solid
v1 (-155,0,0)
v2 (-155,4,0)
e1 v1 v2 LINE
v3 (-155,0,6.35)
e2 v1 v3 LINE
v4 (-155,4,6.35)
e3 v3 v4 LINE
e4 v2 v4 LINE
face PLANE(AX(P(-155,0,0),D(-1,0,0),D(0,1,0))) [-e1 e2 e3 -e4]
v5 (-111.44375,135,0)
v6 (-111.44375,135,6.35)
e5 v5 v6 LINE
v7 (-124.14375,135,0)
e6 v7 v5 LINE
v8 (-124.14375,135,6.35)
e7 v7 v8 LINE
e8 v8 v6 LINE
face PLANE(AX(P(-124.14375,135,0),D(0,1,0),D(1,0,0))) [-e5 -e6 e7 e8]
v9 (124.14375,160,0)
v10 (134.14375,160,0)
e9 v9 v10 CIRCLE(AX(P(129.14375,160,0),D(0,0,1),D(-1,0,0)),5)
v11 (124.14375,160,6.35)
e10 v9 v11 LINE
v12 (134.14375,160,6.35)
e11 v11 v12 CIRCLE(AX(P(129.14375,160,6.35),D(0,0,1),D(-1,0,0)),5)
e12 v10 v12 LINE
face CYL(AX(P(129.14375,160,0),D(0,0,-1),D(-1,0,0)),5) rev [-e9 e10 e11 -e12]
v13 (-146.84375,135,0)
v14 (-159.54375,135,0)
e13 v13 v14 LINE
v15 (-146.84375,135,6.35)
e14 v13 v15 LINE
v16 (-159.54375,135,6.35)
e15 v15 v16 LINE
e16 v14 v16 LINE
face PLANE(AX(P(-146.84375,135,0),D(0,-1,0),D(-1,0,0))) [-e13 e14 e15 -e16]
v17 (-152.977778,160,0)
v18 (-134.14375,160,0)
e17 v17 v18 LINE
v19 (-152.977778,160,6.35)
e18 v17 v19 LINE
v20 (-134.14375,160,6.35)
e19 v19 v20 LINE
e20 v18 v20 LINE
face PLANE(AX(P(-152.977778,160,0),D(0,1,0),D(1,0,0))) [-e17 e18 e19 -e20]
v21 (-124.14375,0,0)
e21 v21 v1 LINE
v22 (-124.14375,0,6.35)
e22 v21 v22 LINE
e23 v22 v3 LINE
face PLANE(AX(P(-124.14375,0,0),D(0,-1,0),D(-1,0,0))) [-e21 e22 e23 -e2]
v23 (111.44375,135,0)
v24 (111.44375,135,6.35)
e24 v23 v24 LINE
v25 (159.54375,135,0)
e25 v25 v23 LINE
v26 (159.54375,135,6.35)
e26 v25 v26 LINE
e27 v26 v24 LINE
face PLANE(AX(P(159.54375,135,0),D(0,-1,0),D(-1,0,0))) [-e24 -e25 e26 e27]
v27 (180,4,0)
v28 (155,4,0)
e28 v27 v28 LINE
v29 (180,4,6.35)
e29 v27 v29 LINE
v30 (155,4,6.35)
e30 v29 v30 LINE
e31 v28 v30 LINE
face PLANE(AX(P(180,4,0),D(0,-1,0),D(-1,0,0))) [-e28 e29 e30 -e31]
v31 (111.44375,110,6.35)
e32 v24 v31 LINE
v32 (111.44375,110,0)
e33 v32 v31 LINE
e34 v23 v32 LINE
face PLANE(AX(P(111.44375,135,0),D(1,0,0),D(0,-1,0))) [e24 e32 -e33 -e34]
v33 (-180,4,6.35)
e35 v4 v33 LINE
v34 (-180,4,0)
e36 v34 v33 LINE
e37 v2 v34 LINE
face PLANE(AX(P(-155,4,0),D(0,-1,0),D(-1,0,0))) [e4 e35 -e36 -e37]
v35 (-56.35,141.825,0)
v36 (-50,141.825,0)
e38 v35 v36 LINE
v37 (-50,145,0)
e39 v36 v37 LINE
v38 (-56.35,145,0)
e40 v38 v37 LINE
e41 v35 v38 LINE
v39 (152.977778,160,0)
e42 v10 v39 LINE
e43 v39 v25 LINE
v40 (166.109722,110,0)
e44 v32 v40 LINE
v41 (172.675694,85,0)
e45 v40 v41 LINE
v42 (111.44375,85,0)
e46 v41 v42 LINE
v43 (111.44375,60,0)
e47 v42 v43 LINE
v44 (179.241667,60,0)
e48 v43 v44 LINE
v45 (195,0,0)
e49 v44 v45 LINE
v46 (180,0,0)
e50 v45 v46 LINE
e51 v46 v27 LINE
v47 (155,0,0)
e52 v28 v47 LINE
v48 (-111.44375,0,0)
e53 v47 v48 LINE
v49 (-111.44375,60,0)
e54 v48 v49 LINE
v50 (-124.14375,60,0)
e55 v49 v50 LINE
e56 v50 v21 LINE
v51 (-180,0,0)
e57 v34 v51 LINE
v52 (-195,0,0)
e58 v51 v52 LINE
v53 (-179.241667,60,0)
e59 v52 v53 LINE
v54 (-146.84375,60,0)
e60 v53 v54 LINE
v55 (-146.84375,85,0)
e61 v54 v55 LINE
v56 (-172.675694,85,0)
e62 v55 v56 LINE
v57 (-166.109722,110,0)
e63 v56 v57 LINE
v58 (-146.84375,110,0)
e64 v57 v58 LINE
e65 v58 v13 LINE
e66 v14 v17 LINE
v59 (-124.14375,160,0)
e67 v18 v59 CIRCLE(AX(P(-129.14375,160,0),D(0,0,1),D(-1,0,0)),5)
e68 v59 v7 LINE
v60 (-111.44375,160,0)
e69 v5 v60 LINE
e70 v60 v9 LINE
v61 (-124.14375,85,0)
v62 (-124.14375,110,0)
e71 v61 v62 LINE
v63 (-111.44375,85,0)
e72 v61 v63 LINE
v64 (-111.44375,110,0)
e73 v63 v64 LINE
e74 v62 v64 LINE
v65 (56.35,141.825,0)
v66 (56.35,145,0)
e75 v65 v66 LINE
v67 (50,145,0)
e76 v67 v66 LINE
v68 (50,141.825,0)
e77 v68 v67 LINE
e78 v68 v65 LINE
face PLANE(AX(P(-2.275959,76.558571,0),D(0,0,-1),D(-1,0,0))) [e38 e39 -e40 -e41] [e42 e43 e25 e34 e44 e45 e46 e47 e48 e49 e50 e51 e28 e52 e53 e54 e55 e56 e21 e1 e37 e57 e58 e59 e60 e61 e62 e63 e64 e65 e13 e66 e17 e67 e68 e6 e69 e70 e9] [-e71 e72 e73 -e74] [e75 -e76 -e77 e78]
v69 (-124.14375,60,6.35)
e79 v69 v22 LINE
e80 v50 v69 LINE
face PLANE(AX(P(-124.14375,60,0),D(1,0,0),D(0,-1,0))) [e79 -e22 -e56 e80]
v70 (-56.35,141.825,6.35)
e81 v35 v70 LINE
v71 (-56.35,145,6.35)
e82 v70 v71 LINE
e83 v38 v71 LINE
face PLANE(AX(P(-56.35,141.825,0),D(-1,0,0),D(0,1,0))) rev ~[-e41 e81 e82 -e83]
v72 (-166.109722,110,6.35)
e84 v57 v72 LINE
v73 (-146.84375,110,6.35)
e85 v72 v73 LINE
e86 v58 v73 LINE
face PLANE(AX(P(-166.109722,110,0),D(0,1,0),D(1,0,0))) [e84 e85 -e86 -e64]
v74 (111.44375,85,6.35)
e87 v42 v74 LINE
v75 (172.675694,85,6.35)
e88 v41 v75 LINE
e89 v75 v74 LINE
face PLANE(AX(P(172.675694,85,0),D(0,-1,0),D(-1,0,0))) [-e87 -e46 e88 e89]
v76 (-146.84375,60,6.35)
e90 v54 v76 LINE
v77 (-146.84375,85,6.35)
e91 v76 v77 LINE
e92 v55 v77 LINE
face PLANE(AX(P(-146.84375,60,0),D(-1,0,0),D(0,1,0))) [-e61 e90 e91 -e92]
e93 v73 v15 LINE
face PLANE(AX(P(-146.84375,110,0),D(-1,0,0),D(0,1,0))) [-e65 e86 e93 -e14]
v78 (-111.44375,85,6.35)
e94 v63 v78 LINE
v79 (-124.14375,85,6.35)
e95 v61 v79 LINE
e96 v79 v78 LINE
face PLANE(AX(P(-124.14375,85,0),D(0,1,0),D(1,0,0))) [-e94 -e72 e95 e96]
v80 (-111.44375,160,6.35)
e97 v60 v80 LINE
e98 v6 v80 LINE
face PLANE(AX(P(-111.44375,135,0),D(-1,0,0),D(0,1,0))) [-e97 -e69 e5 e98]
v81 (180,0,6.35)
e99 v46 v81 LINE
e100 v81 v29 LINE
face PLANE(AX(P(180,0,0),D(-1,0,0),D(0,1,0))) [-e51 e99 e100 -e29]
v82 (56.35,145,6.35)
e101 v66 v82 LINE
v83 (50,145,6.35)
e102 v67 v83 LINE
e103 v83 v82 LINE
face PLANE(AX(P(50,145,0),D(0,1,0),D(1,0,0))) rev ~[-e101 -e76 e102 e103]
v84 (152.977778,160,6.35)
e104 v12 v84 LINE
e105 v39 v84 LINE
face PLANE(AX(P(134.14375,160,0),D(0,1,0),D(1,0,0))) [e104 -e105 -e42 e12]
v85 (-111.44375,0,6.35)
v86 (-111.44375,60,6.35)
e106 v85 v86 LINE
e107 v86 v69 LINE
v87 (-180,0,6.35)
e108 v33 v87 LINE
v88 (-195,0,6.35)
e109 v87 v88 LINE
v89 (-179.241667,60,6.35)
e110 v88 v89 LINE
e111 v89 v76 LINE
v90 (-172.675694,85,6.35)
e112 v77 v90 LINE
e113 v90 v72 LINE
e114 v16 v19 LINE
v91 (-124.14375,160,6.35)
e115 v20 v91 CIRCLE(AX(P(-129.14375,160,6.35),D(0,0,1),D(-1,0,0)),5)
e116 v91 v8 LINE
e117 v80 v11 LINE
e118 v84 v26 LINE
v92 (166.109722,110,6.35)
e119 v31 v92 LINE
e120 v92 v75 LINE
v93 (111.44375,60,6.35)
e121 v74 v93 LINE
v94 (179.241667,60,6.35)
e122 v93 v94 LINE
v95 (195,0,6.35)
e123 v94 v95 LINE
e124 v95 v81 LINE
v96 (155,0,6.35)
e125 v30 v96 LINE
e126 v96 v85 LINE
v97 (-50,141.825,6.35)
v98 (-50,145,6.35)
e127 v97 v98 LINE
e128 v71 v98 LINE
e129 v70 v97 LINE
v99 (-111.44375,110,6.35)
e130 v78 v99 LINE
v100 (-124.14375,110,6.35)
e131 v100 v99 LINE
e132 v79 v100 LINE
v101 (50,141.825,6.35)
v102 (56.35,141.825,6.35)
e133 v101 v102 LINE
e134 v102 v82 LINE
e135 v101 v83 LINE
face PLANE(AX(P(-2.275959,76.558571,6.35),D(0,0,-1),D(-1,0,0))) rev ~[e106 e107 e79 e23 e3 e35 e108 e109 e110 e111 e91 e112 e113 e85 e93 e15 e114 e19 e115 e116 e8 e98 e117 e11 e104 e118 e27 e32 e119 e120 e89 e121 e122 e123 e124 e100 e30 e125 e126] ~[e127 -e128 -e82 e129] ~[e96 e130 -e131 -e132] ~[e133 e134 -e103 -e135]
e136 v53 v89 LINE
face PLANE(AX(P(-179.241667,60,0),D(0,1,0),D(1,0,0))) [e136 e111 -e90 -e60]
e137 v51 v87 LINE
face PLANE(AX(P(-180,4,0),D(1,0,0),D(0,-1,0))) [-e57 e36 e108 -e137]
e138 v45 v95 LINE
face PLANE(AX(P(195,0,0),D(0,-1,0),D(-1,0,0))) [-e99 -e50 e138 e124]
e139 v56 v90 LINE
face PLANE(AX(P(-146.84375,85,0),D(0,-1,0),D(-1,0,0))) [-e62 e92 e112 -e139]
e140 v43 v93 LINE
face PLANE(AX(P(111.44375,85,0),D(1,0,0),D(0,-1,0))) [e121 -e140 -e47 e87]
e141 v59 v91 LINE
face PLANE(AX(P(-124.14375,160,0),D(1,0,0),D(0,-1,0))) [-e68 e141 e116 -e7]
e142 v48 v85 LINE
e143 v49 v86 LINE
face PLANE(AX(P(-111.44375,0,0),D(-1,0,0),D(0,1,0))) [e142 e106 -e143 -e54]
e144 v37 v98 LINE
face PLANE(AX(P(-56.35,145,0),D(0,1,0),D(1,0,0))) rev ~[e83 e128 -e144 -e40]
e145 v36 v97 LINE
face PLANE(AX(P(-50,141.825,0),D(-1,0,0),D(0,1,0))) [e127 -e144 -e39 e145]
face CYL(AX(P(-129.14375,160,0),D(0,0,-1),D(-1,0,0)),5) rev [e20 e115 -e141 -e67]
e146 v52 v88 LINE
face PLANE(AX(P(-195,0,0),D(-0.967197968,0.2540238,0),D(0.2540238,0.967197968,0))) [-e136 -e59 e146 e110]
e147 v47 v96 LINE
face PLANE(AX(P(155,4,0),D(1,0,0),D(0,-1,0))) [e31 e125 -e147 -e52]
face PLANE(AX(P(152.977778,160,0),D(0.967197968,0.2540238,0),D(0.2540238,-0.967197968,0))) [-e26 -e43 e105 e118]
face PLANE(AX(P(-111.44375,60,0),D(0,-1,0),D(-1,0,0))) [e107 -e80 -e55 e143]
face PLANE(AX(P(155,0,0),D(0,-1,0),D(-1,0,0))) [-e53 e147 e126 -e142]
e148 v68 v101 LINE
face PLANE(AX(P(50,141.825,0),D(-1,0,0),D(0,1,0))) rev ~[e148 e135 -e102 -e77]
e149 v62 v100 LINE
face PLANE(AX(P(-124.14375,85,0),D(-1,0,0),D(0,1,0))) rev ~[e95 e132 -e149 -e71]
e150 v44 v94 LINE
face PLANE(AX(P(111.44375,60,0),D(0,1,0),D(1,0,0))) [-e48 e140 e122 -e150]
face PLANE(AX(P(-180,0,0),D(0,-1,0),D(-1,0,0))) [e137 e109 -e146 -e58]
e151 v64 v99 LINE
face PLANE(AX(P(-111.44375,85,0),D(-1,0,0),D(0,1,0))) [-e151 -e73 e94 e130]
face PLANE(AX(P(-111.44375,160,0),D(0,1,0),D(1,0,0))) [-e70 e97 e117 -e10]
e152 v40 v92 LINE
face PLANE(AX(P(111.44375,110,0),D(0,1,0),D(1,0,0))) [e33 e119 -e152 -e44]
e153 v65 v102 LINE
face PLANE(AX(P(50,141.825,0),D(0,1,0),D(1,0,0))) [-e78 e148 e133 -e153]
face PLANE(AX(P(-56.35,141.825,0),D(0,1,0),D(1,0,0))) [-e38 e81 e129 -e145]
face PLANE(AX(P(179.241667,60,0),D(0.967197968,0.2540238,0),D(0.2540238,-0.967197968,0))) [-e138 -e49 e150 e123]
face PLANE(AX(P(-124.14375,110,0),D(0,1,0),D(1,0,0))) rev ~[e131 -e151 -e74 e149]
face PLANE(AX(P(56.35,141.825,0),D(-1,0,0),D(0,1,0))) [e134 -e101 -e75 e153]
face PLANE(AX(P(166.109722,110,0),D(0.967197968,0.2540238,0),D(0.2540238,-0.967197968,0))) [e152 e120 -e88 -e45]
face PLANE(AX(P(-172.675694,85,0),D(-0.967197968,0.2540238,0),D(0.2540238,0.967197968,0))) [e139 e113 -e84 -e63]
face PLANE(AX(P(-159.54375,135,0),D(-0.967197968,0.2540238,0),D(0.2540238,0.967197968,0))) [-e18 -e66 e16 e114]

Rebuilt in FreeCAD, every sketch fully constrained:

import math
import FreeCAD as App
import Part
import Sketcher

V = App.Vector


def add_polygon(sketch, points):
    """Adds a closed chain of lines whose ends are joined by coincident constraints."""
    first, n = sketch.GeometryCount, len(points)
    for a, b in zip(points, points[1:] + points[:1]):
        sketch.addGeometry(Part.LineSegment(App.Vector(*a, 0), App.Vector(*b, 0)), False)
    for i in range(n):
        sketch.addConstraint(Sketcher.Constraint("Coincident", first + i, 2, first + (i + 1) % n, 1))

doc = App.newDocument("Part")
params = doc.addObject("Spreadsheet::Sheet", "Params")
for row, (alias, value) in enumerate([
    ("sketch1_radius", "5 mm"),
    ("sketch1_width", "25 mm"),
    ("sketch1_width2", "15 mm"),
    ("sketch1_height", "4 mm"),
    ("sketch1_height2", "60 mm"),
    ("pad1_length", "6.35 mm"),
], start=1):
    params.set(f"A{row}", alias)
    params.set(f"B{row}", "=" + value)
    params.setAlias(f"B{row}", alias)

body = doc.addObject("PartDesign::Body", "Body")

# Sketch on XY plane
sketch1 = body.newObject("Sketcher::SketchObject", "Sketch")
sketch1.AttachmentSupport = (doc.getObject("XY_Plane"), [""])
sketch1.MapMode = "FlatFace"
sketch1.addGeometry(Part.LineSegment(V(-155, 4, 0), V(-155, 0, 0)), False)  # 0
sketch1.addGeometry(Part.LineSegment(V(-155, 0, 0), V(-124.1, 0, 0)), False)  # 1
sketch1.addGeometry(Part.LineSegment(V(-124.1, 0, 0), V(-124.1, 60, 0)), False)  # 2
sketch1.addGeometry(Part.LineSegment(V(-124.1, 60, 0), V(-111.4, 60, 0)), False)  # 3
sketch1.addGeometry(Part.LineSegment(V(-111.4, 60, 0), V(-111.4, 0, 0)), False)  # 4
sketch1.addGeometry(Part.LineSegment(V(-111.4, 0, 0), V(155, 0, 0)), False)  # 5
sketch1.addGeometry(Part.LineSegment(V(155, 0, 0), V(155, 4, 0)), False)  # 6
sketch1.addGeometry(Part.LineSegment(V(155, 4, 0), V(180, 4, 0)), False)  # 7
sketch1.addGeometry(Part.LineSegment(V(180, 4, 0), V(180, 0, 0)), False)  # 8
sketch1.addGeometry(Part.LineSegment(V(180, 0, 0), V(195, 0, 0)), False)  # 9
sketch1.addGeometry(Part.LineSegment(V(195, 0, 0), V(179.2, 60, 0)), False)  # 10
sketch1.addGeometry(Part.LineSegment(V(179.2, 60, 0), V(111.4, 60, 0)), False)  # 11
sketch1.addGeometry(Part.LineSegment(V(111.4, 60, 0), V(111.4, 85, 0)), False)  # 12
sketch1.addGeometry(Part.LineSegment(V(111.4, 85, 0), V(172.7, 85, 0)), False)  # 13
sketch1.addGeometry(Part.LineSegment(V(172.7, 85, 0), V(166.1, 110, 0)), False)  # 14
sketch1.addGeometry(Part.LineSegment(V(166.1, 110, 0), V(111.4, 110, 0)), False)  # 15
sketch1.addGeometry(Part.LineSegment(V(111.4, 110, 0), V(111.4, 135, 0)), False)  # 16
sketch1.addGeometry(Part.LineSegment(V(111.4, 135, 0), V(159.5, 135, 0)), False)  # 17
sketch1.addGeometry(Part.LineSegment(V(159.5, 135, 0), V(153, 160, 0)), False)  # 18
sketch1.addGeometry(Part.LineSegment(V(153, 160, 0), V(134.1, 160, 0)), False)  # 19
sketch1.addGeometry(Part.ArcOfCircle(Part.Circle(V(129.1, 160, 0), V(0, 0, 1), 5), math.radians(180), math.radians(360)), False)  # 20
sketch1.addGeometry(Part.LineSegment(V(124.1, 160, 0), V(-111.4, 160, 0)), False)  # 21
sketch1.addGeometry(Part.LineSegment(V(-111.4, 160, 0), V(-111.4, 135, 0)), False)  # 22
sketch1.addGeometry(Part.LineSegment(V(-111.4, 135, 0), V(-124.1, 135, 0)), False)  # 23
sketch1.addGeometry(Part.LineSegment(V(-124.1, 135, 0), V(-124.1, 160, 0)), False)  # 24
sketch1.addGeometry(Part.ArcOfCircle(Part.Circle(V(-129.1, 160, 0), V(0, 0, 1), 5), math.radians(180), math.radians(360)), False)  # 25
sketch1.addGeometry(Part.LineSegment(V(-134.1, 160, 0), V(-153, 160, 0)), False)  # 26
sketch1.addGeometry(Part.LineSegment(V(-153, 160, 0), V(-159.5, 135, 0)), False)  # 27
sketch1.addGeometry(Part.LineSegment(V(-159.5, 135, 0), V(-146.8, 135, 0)), False)  # 28
sketch1.addGeometry(Part.LineSegment(V(-146.8, 135, 0), V(-146.8, 110, 0)), False)  # 29
sketch1.addGeometry(Part.LineSegment(V(-146.8, 110, 0), V(-166.1, 110, 0)), False)  # 30
sketch1.addGeometry(Part.LineSegment(V(-166.1, 110, 0), V(-172.7, 85, 0)), False)  # 31
sketch1.addGeometry(Part.LineSegment(V(-172.7, 85, 0), V(-146.8, 85, 0)), False)  # 32
sketch1.addGeometry(Part.LineSegment(V(-146.8, 85, 0), V(-146.8, 60, 0)), False)  # 33
sketch1.addGeometry(Part.LineSegment(V(-146.8, 60, 0), V(-179.2, 60, 0)), False)  # 34
sketch1.addGeometry(Part.LineSegment(V(-179.2, 60, 0), V(-195, 0, 0)), False)  # 35
sketch1.addGeometry(Part.LineSegment(V(-195, 0, 0), V(-180, 0, 0)), False)  # 36
sketch1.addGeometry(Part.LineSegment(V(-180, 0, 0), V(-180, 4, 0)), False)  # 37
sketch1.addGeometry(Part.LineSegment(V(-180, 4, 0), V(-155, 4, 0)), False)  # 38
add_polygon(sketch1, [(-124.1, 85), (-124.1, 110), (-111.4, 110), (-111.4, 85)])  # lines 39-42
add_polygon(sketch1, [(50, 141.8), (50, 145), (56.4, 145), (56.4, 141.8)])  # lines 43-46
add_polygon(sketch1, [(-56.4, 141.8), (-56.4, 145), (-50, 145), (-50, 141.8)])  # lines 47-50
sketch1.addConstraint([
    Sketcher.Constraint("Coincident", 0, 2, 1, 1),
    Sketcher.Constraint("Coincident", 1, 2, 2, 1),
    Sketcher.Constraint("Coincident", 2, 2, 3, 1),
    Sketcher.Constraint("Coincident", 3, 2, 4, 1),
    Sketcher.Constraint("Coincident", 4, 2, 5, 1),
    Sketcher.Constraint("Coincident", 5, 2, 6, 1),
    Sketcher.Constraint("Coincident", 6, 2, 7, 1),
    Sketcher.Constraint("Coincident", 7, 2, 8, 1),
    Sketcher.Constraint("Coincident", 8, 2, 9, 1),
    Sketcher.Constraint("Coincident", 9, 2, 10, 1),
    Sketcher.Constraint("Coincident", 10, 2, 11, 1),
    Sketcher.Constraint("Coincident", 11, 2, 12, 1),
    Sketcher.Constraint("Coincident", 12, 2, 13, 1),
    Sketcher.Constraint("Coincident", 13, 2, 14, 1),
    Sketcher.Constraint("Coincident", 14, 2, 15, 1),
    Sketcher.Constraint("Coincident", 15, 2, 16, 1),
    Sketcher.Constraint("Coincident", 16, 2, 17, 1),
    Sketcher.Constraint("Coincident", 17, 2, 18, 1),
    Sketcher.Constraint("Coincident", 18, 2, 19, 1),
    Sketcher.Constraint("Coincident", 19, 2, 20, 2),
    Sketcher.Constraint("Coincident", 20, 1, 21, 1),
    Sketcher.Constraint("Coincident", 21, 2, 22, 1),
    Sketcher.Constraint("Coincident", 22, 2, 23, 1),
    Sketcher.Constraint("Coincident", 23, 2, 24, 1),
    Sketcher.Constraint("Tangent", 24, 2, 25, 2),
    Sketcher.Constraint("Coincident", 25, 1, 26, 1),
    Sketcher.Constraint("Coincident", 26, 2, 27, 1),
    Sketcher.Constraint("Coincident", 27, 2, 28, 1),
    Sketcher.Constraint("Coincident", 28, 2, 29, 1),
    Sketcher.Constraint("Coincident", 29, 2, 30, 1),
    Sketcher.Constraint("Coincident", 30, 2, 31, 1),
    Sketcher.Constraint("Coincident", 31, 2, 32, 1),
    Sketcher.Constraint("Coincident", 32, 2, 33, 1),
    Sketcher.Constraint("Coincident", 33, 2, 34, 1),
    Sketcher.Constraint("Coincident", 34, 2, 35, 1),
    Sketcher.Constraint("Coincident", 35, 2, 36, 1),
    Sketcher.Constraint("Coincident", 36, 2, 37, 1),
    Sketcher.Constraint("Coincident", 37, 2, 38, 1),
    Sketcher.Constraint("Coincident", 38, 2, 0, 1),
    Sketcher.Constraint("Vertical", 0),
    Sketcher.Constraint("Horizontal", 1),
    Sketcher.Constraint("Vertical", 2),
    Sketcher.Constraint("Horizontal", 3),
    Sketcher.Constraint("Vertical", 4),
    Sketcher.Constraint("Horizontal", 5),
    Sketcher.Constraint("Vertical", 6),
    Sketcher.Constraint("Horizontal", 7),
    Sketcher.Constraint("Vertical", 8),
    Sketcher.Constraint("Horizontal", 9),
    Sketcher.Constraint("Horizontal", 11),
    Sketcher.Constraint("Vertical", 12),
    Sketcher.Constraint("Horizontal", 13),
    Sketcher.Constraint("Horizontal", 15),
    Sketcher.Constraint("Vertical", 16),
    Sketcher.Constraint("Horizontal", 17),
    Sketcher.Constraint("Horizontal", 19),
    Sketcher.Constraint("Horizontal", 21),
    Sketcher.Constraint("Vertical", 22),
    Sketcher.Constraint("Horizontal", 23),
    Sketcher.Constraint("Vertical", 24),
    Sketcher.Constraint("Horizontal", 26),
    Sketcher.Constraint("Horizontal", 28),
    Sketcher.Constraint("Vertical", 29),
    Sketcher.Constraint("Horizontal", 30),
    Sketcher.Constraint("Horizontal", 32),
    Sketcher.Constraint("Vertical", 33),
    Sketcher.Constraint("Horizontal", 34),
    Sketcher.Constraint("Horizontal", 36),
    Sketcher.Constraint("Vertical", 37),
    Sketcher.Constraint("Horizontal", 38),
    Sketcher.Constraint("Vertical", 39),
    Sketcher.Constraint("Horizontal", 40),
    Sketcher.Constraint("Vertical", 41),
    Sketcher.Constraint("Horizontal", 42),
    Sketcher.Constraint("Vertical", 43),
    Sketcher.Constraint("Horizontal", 44),
    Sketcher.Constraint("Vertical", 45),
    Sketcher.Constraint("Horizontal", 46),
    Sketcher.Constraint("Vertical", 47),
    Sketcher.Constraint("Horizontal", 48),
    Sketcher.Constraint("Vertical", 49),
    Sketcher.Constraint("Horizontal", 50),
    Sketcher.Constraint("Equal", 20, 25),
    Sketcher.Constraint("Symmetric", 0, 2, 5, 2, -1, 1),
    Sketcher.Constraint("Symmetric", 9, 2, 35, 2, -1, 1),
    Sketcher.Constraint("Symmetric", 20, 3, 25, 3, -2),
    Sketcher.Constraint("Symmetric", 3, 2, 11, 2, -2),
    Sketcher.Constraint("Symmetric", 16, 2, 22, 2, -2),
    Sketcher.Constraint("Symmetric", 18, 2, 26, 2, -2),
    Sketcher.Constraint("Symmetric", 17, 2, 27, 2, -2),
    Sketcher.Constraint("Symmetric", 14, 2, 30, 2, -2),
    Sketcher.Constraint("Symmetric", 13, 2, 31, 2, -2),
    Sketcher.Constraint("Symmetric", 10, 2, 34, 2, -2),
    Sketcher.Constraint("Symmetric", 8, 2, 36, 2, -2),
    Sketcher.Constraint("Symmetric", 15, 2, 40, 2, -2),
    Sketcher.Constraint("Symmetric", 12, 2, 41, 2, -2),
    Sketcher.Constraint("Symmetric", 44, 2, 47, 2, -2),
    Sketcher.Constraint("Symmetric", 46, 2, 49, 2, -2),
    Sketcher.Constraint("PointOnObject", 0, 2, -1),
    Sketcher.Constraint("Parallel", 10, 14),
    Sketcher.Constraint("Parallel", 14, 18),
    Sketcher.Constraint("Horizontal", 25, 3, 18, 2),
    Sketcher.Constraint("Horizontal", 19, 2, 20, 1),
    Sketcher.Constraint("Horizontal", 7, 2, 37, 2),
    Sketcher.Constraint("Vertical", 2, 2, 23, 2),
    Sketcher.Constraint("Vertical", 29, 2, 32, 2),
    Sketcher.Constraint("Vertical", 24, 2, 39, 2),
    Sketcher.Constraint("Equal", 23, 28),
    Sketcher.Constraint("Equal", 38, 12),
    Sketcher.Constraint("Equal", 12, 16),
    Sketcher.Constraint("Equal", 16, 22),
    Sketcher.Constraint("Equal", 33, 39),
    Sketcher.Constraint("Radius", 20, 5.0),
    Sketcher.Constraint("DistanceX", 7, 1, 7, 2, 25.0),
    Sketcher.Constraint("DistanceX", 9, 1, 9, 2, 15.0),
    Sketcher.Constraint("DistanceY", 0, 2, 0, 1, 4.0),
    Sketcher.Constraint("DistanceY", 2, 1, 2, 2, 60.0),
    Sketcher.Constraint("DistanceX", 3, 1, 3, 2, 12.7),
    Sketcher.Constraint("DistanceX", 17, 1, 17, 2, 48.1),
    Sketcher.Constraint("DistanceX", 0, 2, -1, 1, 155.0),
    Sketcher.Constraint("DistanceX", -1, 1, 43, 2, 50.0),
    Sketcher.Constraint("DistanceY", -1, 1, 43, 2, 145.0),
    Sketcher.Constraint("DistanceX", 44, 1, 44, 2, 6.35),
    Sketcher.Constraint("DistanceY", 43, 1, 43, 2, 3.175),
    Sketcher.Constraint("DistanceX", 21, 2, 21, 1, 235.5875),
    Sketcher.Constraint("Distance", 10, 62.03487),
    Sketcher.Constraint("DistanceX", 13, 1, 13, 2, 61.231944),
])
sketch1.setExpression("Constraints[124]", "Params.sketch1_radius")
sketch1.setExpression("Constraints[125]", "Params.sketch1_width")
sketch1.setExpression("Constraints[126]", "Params.sketch1_width2")
sketch1.setExpression("Constraints[127]", "Params.sketch1_height")
sketch1.setExpression("Constraints[128]", "Params.sketch1_height2")
pad1 = body.newObject("PartDesign::Pad", "Pad")
pad1.Profile = sketch1
pad1.setExpression("Length", "Params.pad1_length")

doc.recompute()
